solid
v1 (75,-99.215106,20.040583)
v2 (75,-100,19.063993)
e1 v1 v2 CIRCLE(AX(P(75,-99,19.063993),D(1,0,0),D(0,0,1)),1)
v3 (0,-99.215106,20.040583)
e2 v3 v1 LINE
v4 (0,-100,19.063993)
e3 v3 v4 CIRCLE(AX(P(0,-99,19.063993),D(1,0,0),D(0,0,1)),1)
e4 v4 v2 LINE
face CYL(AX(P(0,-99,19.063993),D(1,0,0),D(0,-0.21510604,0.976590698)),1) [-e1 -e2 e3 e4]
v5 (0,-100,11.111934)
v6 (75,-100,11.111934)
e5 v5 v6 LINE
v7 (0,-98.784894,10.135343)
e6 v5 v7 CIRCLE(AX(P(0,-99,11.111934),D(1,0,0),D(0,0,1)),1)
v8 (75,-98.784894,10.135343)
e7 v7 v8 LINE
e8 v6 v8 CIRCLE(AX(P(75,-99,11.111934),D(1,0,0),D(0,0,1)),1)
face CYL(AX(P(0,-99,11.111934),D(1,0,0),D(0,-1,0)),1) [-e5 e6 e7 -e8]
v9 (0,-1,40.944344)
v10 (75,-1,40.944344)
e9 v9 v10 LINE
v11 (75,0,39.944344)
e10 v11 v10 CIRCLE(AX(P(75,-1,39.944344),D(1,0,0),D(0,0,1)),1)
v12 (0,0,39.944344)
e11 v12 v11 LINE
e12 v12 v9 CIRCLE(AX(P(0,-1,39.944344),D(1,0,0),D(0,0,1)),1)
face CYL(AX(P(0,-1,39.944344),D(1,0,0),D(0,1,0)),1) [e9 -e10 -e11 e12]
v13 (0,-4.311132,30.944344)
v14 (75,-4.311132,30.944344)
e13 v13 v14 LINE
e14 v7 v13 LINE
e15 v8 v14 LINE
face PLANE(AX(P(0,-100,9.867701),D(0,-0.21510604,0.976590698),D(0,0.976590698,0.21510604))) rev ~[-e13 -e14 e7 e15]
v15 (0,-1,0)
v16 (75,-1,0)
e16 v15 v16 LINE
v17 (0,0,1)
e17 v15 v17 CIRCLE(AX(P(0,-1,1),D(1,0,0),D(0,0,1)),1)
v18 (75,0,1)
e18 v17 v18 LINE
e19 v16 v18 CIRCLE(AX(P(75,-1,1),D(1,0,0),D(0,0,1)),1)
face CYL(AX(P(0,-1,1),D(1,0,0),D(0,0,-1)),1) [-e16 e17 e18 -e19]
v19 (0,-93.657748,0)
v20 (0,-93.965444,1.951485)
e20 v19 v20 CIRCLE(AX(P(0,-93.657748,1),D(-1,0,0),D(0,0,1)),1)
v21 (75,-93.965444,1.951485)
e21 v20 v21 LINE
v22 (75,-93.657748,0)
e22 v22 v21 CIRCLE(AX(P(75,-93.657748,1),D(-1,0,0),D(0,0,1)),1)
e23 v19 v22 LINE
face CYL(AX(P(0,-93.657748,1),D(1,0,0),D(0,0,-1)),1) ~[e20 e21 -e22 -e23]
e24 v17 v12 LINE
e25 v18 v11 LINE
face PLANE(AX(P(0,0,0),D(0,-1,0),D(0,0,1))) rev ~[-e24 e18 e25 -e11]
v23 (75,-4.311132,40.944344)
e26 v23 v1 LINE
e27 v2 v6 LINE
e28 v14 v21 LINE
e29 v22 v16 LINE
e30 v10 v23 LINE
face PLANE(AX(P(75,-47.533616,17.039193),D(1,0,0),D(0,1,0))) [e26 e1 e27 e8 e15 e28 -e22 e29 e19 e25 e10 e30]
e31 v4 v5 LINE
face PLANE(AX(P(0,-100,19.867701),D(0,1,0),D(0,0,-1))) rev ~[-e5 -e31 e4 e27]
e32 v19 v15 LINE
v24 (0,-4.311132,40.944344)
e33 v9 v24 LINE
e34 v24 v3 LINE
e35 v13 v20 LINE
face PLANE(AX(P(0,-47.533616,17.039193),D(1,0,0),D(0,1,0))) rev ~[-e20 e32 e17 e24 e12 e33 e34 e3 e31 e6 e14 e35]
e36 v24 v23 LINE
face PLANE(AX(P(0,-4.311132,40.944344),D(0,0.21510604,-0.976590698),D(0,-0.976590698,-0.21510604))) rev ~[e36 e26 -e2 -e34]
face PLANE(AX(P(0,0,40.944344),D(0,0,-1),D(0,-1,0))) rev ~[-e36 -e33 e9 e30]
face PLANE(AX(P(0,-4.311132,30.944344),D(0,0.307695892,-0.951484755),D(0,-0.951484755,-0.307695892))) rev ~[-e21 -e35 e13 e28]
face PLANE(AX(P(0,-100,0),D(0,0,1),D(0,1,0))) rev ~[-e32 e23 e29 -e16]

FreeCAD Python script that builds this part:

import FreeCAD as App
import Part
import Sketcher
from FreeCAD import Vector
Q = App.Units.Quantity


def edges_at(feature, points):
    """Names of the edges that pass closest to the given points."""
    edges = feature.Shape.Edges
    near = lambda p: min(range(len(edges)), key=lambda i: edges[i].distToShape(Part.Vertex(*p))[0])
    return sorted({f"Edge{near(p) + 1}" for p in points})

doc = App.newDocument("Part")
body = doc.addObject("PartDesign::Body", "Body")

# Sketch on YZ plane
sketch1 = body.newObject("Sketcher::SketchObject", "Sketch")
sketch1.AttachmentSupport = (doc.getObject("YZ_Plane"), [""])
sketch1.MapMode = "FlatFace"
sketch1.addGeometry([
    Part.LineSegment(Vector(-100, 0, 0), Vector(0, 0, 0)),  # 0
    Part.LineSegment(Vector(0, 0, 0), Vector(0, 40.944344, 0)),  # 1
    Part.LineSegment(Vector(0, 40.944344, 0), Vector(-4.311132, 40.944344, 0)),  # 2
    Part.LineSegment(Vector(-4.311132, 40.944344, 0), Vector(-100, 19.867701, 0)),  # 3
    Part.LineSegment(Vector(-100, 19.867701, 0), Vector(-100, 9.867701, 0)),  # 4
    Part.LineSegment(Vector(-100, 9.867701, 0), Vector(-4.311132, 30.944344, 0)),  # 5
    Part.LineSegment(Vector(-4.311132, 30.944344, 0), Vector(-100, 0, 0)),  # 6
], False)
sketch1.addConstraint([
    Sketcher.Constraint("Coincident", 0, 2, 1, 1),
    Sketcher.Constraint("Coincident", 1, 2, 2, 1),
    Sketcher.Constraint("Coincident", 2, 2, 3, 1),
    Sketcher.Constraint("Coincident", 3, 2, 4, 1),
    Sketcher.Constraint("Coincident", 4, 2, 5, 1),
    Sketcher.Constraint("Coincident", 5, 2, 6, 1),
    Sketcher.Constraint("Coincident", 6, 2, 0, 1),
    Sketcher.Constraint("Horizontal", 0),
    Sketcher.Constraint("Vertical", 1),
    Sketcher.Constraint("Horizontal", 2),
    Sketcher.Constraint("Vertical", 4),
    Sketcher.Constraint("Coincident", 0, 2, -1, 1),
    Sketcher.Constraint("Parallel", 3, 5),
    Sketcher.Constraint("Vertical", 2, 2, 5, 2),
    Sketcher.Constraint("Vertical", 4, 2, 6, 2),
    Sketcher.Constraint("DistanceX", 0, 1, 0, 2, Q("100 mm")),
    Sketcher.Constraint("DistanceY", 4, 2, 4, 1, Q("10 mm")),
    Sketcher.Constraint("DistanceX", 2, 2, 2, 1, Q("4.311132 mm")),
    Sketcher.Constraint("DistanceY", -1, 1, 3, 2, Q("19.867701 mm")),
    Sketcher.Constraint("Distance", 3, Q("97.982572 mm")),
])
pad1 = body.newObject("PartDesign::Pad", "Pad")
pad1.Profile = sketch1
pad1.Length = 75
doc.recompute()

fillet = body.newObject("PartDesign::Fillet", "Fillet")
fillet.Base = (pad1, edges_at(pad1, [
    (37.5, -100, 9.868),
    (37.5, -100, 19.868),
    (37.5, -100, 0),
    (37.5, 0, 40.944),
    (37.5, 0, 0),
]))
fillet.Radius = 1

doc.recompute()
